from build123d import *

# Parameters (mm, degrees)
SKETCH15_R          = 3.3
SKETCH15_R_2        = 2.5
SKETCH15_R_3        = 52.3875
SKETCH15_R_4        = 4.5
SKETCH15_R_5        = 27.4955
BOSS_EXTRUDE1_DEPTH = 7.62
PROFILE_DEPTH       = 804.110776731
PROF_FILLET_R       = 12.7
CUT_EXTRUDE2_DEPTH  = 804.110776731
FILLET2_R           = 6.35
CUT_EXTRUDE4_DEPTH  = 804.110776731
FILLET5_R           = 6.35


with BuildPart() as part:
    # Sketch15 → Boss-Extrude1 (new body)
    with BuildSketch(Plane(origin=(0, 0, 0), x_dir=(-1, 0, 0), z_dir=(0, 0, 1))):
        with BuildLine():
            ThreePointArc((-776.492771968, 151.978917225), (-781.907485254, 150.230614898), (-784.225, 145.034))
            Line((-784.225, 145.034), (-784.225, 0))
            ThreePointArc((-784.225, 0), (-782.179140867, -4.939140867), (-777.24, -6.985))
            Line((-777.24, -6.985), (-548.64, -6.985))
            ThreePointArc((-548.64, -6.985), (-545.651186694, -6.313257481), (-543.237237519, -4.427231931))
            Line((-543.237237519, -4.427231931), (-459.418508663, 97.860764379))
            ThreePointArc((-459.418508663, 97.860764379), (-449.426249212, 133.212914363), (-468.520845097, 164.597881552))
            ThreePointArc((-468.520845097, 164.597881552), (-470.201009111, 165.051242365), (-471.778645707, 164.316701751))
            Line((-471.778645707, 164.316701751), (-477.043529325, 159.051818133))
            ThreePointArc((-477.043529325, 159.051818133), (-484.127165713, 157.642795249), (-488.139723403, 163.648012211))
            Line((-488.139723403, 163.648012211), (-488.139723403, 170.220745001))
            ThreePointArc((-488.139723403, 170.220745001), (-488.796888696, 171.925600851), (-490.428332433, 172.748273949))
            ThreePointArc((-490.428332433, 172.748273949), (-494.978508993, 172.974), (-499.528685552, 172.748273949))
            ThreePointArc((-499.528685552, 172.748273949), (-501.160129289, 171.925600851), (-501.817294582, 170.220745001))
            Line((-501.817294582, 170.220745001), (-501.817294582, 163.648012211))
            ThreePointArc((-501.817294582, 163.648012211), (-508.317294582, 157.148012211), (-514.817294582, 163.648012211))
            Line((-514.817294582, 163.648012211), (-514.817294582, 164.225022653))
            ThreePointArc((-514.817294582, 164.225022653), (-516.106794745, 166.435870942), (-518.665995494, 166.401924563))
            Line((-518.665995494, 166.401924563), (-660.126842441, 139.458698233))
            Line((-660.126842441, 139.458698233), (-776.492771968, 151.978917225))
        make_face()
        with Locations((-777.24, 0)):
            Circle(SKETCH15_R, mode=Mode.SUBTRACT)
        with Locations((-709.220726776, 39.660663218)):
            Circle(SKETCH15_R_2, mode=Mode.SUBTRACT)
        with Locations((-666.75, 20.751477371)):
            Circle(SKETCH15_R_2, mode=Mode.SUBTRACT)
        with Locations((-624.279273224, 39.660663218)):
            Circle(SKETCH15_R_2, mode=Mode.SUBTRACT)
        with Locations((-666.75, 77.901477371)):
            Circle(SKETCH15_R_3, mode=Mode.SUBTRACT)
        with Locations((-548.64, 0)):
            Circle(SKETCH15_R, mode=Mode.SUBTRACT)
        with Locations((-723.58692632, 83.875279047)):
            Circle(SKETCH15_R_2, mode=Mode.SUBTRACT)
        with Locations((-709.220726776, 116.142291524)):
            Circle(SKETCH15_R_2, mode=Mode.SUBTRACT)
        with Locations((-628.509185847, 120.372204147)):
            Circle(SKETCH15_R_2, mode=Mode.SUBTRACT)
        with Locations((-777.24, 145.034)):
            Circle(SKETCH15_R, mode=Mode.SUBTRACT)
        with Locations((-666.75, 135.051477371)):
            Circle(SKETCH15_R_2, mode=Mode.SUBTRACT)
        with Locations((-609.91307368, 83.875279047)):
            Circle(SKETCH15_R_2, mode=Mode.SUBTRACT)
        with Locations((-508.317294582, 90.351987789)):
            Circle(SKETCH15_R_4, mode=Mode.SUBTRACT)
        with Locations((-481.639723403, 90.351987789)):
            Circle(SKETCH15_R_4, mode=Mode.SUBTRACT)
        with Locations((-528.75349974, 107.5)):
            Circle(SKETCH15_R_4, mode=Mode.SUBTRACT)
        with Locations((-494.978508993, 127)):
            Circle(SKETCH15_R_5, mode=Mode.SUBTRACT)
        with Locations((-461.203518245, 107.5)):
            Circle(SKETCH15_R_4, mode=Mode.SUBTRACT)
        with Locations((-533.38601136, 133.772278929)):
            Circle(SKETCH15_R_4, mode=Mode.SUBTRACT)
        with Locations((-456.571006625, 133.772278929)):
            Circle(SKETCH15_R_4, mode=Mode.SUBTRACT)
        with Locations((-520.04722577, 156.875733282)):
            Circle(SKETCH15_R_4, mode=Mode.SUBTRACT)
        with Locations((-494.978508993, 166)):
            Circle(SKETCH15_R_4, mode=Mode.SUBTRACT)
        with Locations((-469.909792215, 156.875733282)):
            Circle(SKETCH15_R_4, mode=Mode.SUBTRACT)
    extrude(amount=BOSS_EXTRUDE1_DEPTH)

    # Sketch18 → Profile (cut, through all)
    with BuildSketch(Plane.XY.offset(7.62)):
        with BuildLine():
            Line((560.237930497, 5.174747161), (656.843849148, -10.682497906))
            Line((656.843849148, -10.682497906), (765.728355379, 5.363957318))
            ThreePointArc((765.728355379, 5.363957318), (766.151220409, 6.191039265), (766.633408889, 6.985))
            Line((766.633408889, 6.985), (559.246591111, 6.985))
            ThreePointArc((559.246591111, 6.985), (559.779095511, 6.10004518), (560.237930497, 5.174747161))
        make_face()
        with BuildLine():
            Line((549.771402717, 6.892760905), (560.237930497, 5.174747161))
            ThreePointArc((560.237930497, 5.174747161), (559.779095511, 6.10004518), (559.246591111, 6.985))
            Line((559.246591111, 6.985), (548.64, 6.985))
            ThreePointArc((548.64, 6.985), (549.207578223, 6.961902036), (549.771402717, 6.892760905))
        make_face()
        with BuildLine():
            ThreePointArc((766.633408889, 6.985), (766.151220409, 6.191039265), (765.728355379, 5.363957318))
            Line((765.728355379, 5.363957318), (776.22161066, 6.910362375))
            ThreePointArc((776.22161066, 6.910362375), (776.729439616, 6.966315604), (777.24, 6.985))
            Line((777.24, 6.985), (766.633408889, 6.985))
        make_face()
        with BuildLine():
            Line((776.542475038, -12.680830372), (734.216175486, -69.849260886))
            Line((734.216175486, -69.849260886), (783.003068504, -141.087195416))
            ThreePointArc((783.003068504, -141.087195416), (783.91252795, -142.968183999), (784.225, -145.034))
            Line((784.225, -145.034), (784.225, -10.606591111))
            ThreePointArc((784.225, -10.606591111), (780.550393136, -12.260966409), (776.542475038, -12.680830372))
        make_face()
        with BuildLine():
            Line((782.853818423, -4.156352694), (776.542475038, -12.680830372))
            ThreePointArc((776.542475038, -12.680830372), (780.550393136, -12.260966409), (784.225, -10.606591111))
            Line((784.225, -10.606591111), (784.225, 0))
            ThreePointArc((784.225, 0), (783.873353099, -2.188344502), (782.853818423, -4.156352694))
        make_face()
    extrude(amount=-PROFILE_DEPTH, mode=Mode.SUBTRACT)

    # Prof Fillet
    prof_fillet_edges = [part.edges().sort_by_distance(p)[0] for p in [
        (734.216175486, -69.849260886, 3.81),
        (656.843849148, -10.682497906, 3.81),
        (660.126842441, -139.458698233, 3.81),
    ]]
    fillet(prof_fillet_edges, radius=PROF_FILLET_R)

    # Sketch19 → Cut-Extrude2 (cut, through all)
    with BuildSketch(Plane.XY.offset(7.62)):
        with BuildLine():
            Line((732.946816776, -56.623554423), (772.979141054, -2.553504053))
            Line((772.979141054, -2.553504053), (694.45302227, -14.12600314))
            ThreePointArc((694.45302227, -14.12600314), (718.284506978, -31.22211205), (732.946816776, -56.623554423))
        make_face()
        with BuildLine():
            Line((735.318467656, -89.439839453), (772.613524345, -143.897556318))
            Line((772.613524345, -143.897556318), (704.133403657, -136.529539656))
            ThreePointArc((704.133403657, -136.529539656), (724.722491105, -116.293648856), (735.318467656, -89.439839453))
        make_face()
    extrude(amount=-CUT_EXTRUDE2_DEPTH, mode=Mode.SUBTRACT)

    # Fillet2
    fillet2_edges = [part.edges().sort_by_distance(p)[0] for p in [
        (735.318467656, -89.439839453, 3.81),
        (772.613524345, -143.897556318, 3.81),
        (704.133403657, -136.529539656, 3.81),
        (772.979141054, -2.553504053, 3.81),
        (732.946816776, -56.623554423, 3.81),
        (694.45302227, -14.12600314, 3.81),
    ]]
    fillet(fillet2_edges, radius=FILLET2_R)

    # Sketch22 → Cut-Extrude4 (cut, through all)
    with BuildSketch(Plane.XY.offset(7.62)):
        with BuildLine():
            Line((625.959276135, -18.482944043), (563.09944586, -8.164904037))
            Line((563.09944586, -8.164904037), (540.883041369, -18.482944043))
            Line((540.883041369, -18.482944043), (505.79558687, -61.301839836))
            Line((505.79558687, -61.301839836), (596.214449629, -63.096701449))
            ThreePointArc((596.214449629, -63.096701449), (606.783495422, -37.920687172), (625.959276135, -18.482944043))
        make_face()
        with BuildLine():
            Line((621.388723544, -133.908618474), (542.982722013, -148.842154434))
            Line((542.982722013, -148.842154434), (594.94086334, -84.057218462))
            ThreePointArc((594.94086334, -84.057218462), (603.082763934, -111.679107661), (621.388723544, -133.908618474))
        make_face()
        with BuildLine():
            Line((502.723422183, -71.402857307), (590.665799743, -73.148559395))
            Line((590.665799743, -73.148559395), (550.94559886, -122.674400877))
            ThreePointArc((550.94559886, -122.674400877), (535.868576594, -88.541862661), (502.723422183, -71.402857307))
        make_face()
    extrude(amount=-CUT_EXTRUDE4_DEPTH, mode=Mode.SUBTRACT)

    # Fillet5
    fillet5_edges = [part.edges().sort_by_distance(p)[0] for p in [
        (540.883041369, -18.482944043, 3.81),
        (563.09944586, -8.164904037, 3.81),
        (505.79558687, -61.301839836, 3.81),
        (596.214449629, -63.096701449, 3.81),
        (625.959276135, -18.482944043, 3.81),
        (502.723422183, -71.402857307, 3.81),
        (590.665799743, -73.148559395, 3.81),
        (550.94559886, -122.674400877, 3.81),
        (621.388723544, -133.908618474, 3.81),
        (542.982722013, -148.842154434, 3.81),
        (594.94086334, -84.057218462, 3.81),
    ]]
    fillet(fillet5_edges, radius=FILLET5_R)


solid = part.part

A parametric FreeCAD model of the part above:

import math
import FreeCAD as App
import Part
import Sketcher

V = App.Vector
Q = App.Units.Quantity


def edges_at(feature, points):
    """Names of the edges that pass closest to the given points."""
    edges = feature.Shape.Edges
    near = lambda p: min(range(len(edges)), key=lambda i: edges[i].distToShape(Part.Vertex(*p))[0])
    return sorted({f"Edge{near(p) + 1}" for p in points})

doc = App.newDocument("Part")
params = doc.addObject("Spreadsheet::Sheet", "Params")
for row, (alias, value) in enumerate([
    ("sketch1_radius", "0.1 in"),
    ("sketch1_width", "9 in"),
    ("sketch1_radius2", "1.81 in"),
    ("sketch1_diameter", "4.125 in"),
    ("sketch1_diameter2", "2.165 in"),
    ("pad1_length", "0.3 in"),
    ("sketch2_width", "9 in"),
    ("sketch2_radius", "0.275 in"),
    ("sketch2_height", "5.71 in"),
    ("fillet_radius", "0.5 in"),
    ("fillet2_radius", "0.25 in"),
    ("sketch4_radius", "2.21 in"),
    ("fillet3_radius", "0.25 in"),
], start=1):
    params.set(f"A{row}", alias)
    params.set(f"B{row}", "=" + value)
    params.setAlias(f"B{row}", alias)

body = doc.addObject("PartDesign::Body", "Body")

# Sketch on XY plane
sketch1 = body.newObject("Sketcher::SketchObject", "Sketch")
sketch1.AttachmentSupport = (doc.getObject("XY_Plane"), [""])
sketch1.MapMode = "FlatFace"
sketch1.addGeometry([
    Part.ArcOfCircle(Part.Circle(V(777.2, -145, 0), V(0, 0, 1), 7), math.radians(-96), math.radians(0)),  # 0
    Part.LineSegment(V(784.2, -145, 0), V(784.2, 0, 0)),  # 1
    Part.ArcOfCircle(Part.Circle(V(777.2, 0, 0), V(0, 0, 1), 7), math.radians(0), math.radians(90)),  # 2
    Part.LineSegment(V(777.2, 7, 0), V(548.6, 7, 0)),  # 3
    Part.ArcOfCircle(Part.Circle(V(548.6, 0, 0), V(0, 0, 1), 7), math.radians(90), math.radians(141)),  # 4
    Part.LineSegment(V(543.2, 4.4, 0), V(459.4, -97.9, 0)),  # 5
    Part.ArcOfCircle(Part.Circle(V(495, -127, 0), V(0, 0, 1), 46), math.radians(141), math.radians(235)),  # 6
    Part.ArcOfCircle(Part.Circle(V(470, -162.5, 0), V(0, 0, 1), 2.5), math.radians(-125), math.radians(-45)),  # 7
    Part.LineSegment(V(471.8, -164.3, 0), V(477, -159.1, 0)),  # 8
    Part.ArcOfCircle(Part.Circle(V(481.6, -163.6, 0), V(0, 0, 1), 6.5), math.radians(0), math.radians(135)),  # 9
    Part.LineSegment(V(488.1, -163.6, 0), V(488.1, -170.2, 0)),  # 10
    Part.ArcOfCircle(Part.Circle(V(490.7, -170.2, 0), V(0, 0, 1), 2.5), math.radians(180), math.radians(264)),  # 11
    Part.ArcOfCircle(Part.Circle(V(495, -127, 0), V(0, 0, 1), 46), math.radians(-95.68), math.radians(-84.32)),  # 12
    Part.ArcOfCircle(Part.Circle(V(499.3, -170.2, 0), V(0, 0, 1), 2.5), math.radians(-84), math.radians(0)),  # 13
    Part.LineSegment(V(501.8, -170.2, 0), V(501.8, -163.6, 0)),  # 14
    Part.ArcOfCircle(Part.Circle(V(508.3, -163.6, 0), V(0, 0, 1), 6.5), math.radians(0), math.radians(180)),  # 15
    Part.LineSegment(V(514.8, -163.6, 0), V(514.8, -164.2, 0)),  # 16
    Part.ArcOfCircle(Part.Circle(V(517.4, -164.2, 0), V(0, 0, 1), 2.5), math.radians(-180), math.radians(-59)),  # 17
    Part.LineSegment(V(518.7, -166.4, 0), V(660.1, -139.5, 0)),  # 18
    Part.LineSegment(V(660.1, -139.5, 0), V(776.5, -152, 0)),  # 19
    Part.Circle(V(777.2, 0, 0), V(0, 0, 1), 3.3),  # 20
    Part.Circle(V(709.2, -39.7, 0), V(0, 0, 1), 2.5),  # 21
    Part.Circle(V(666.8, -20.8, 0), V(0, 0, 1), 2.5),  # 22
    Part.Circle(V(624.3, -39.7, 0), V(0, 0, 1), 2.5),  # 23
    Part.Circle(V(666.8, -77.9, 0), V(0, 0, 1), 52.4),  # 24
    Part.Circle(V(548.6, 0, 0), V(0, 0, 1), 3.3),  # 25
    Part.Circle(V(723.6, -83.9, 0), V(0, 0, 1), 2.5),  # 26
    Part.Circle(V(709.2, -116.1, 0), V(0, 0, 1), 2.5),  # 27
    Part.Circle(V(628.5, -120.4, 0), V(0, 0, 1), 2.5),  # 28
    Part.Circle(V(777.2, -145, 0), V(0, 0, 1), 3.3),  # 29
    Part.Circle(V(666.8, -135.1, 0), V(0, 0, 1), 2.5),  # 30
    Part.Circle(V(609.9, -83.9, 0), V(0, 0, 1), 2.5),  # 31
    Part.Circle(V(508.3, -90.4, 0), V(0, 0, 1), 4.5),  # 32
    Part.Circle(V(481.6, -90.4, 0), V(0, 0, 1), 4.5),  # 33
    Part.Circle(V(528.8, -107.5, 0), V(0, 0, 1), 4.5),  # 34
    Part.Circle(V(495, -127, 0), V(0, 0, 1), 27.5),  # 35
    Part.Circle(V(461.2, -107.5, 0), V(0, 0, 1), 4.5),  # 36
    Part.Circle(V(533.4, -133.8, 0), V(0, 0, 1), 4.5),  # 37
    Part.Circle(V(456.6, -133.8, 0), V(0, 0, 1), 4.5),  # 38
    Part.Circle(V(520, -156.9, 0), V(0, 0, 1), 4.5),  # 39
    Part.Circle(V(495, -166, 0), V(0, 0, 1), 4.5),  # 40
    Part.Circle(V(469.9, -156.9, 0), V(0, 0, 1), 4.5),  # 41
], False)
sketch1.addConstraint([
    Sketcher.Constraint("Tangent", 0, 2, 1, 1),
    Sketcher.Constraint("Tangent", 1, 2, 2, 1),
    Sketcher.Constraint("Tangent", 2, 2, 3, 1),
    Sketcher.Constraint("Tangent", 3, 2, 4, 1),
    Sketcher.Constraint("Tangent", 4, 2, 5, 1),
    Sketcher.Constraint("Tangent", 5, 2, 6, 1),
    Sketcher.Constraint("Tangent", 6, 2, 7, 1),
    Sketcher.Constraint("Tangent", 7, 2, 8, 1),
    Sketcher.Constraint("Tangent", 8, 2, 9, 2),
    Sketcher.Constraint("Tangent", 9, 1, 10, 1),
    Sketcher.Constraint("Tangent", 10, 2, 11, 1),
    Sketcher.Constraint("Tangent", 11, 2, 12, 1),
    Sketcher.Constraint("Tangent", 12, 2, 13, 1),
    Sketcher.Constraint("Tangent", 13, 2, 14, 1),
    Sketcher.Constraint("Tangent", 14, 2, 15, 2),
    Sketcher.Constraint("Tangent", 15, 1, 16, 1),
    Sketcher.Constraint("Tangent", 16, 2, 17, 1),
    Sketcher.Constraint("Coincident", 17, 2, 18, 1),
    Sketcher.Constraint("Coincident", 18, 2, 19, 1),
    Sketcher.Constraint("Tangent", 19, 2, 0, 1),
    Sketcher.Constraint("Vertical", 1),
    Sketcher.Constraint("Horizontal", 3),
    Sketcher.Constraint("Vertical", 10),
    Sketcher.Constraint("Vertical", 14),
    Sketcher.Constraint("Vertical", 16),
    Sketcher.Constraint("Coincident", 12, 3, 6, 3),
    Sketcher.Constraint("Coincident", 20, 3, 2, 3),
    Sketcher.Constraint("Coincident", 25, 3, 4, 3),
    Sketcher.Constraint("Coincident", 29, 3, 0, 3),
    Sketcher.Constraint("Coincident", 35, 3, 6, 3),
    Sketcher.Constraint("Equal", 0, 2),
    Sketcher.Constraint("Equal", 2, 4),
    Sketcher.Constraint("Equal", 7, 11),
    Sketcher.Constraint("Equal", 6, 12),
    Sketcher.Constraint("Equal", 11, 13),
    Sketcher.Constraint("Equal", 9, 15),
    Sketcher.Constraint("Equal", 13, 17),
    Sketcher.Constraint("Equal", 21, 22),
    Sketcher.Constraint("Equal", 22, 23),
    Sketcher.Constraint("Equal", 20, 25),
    Sketcher.Constraint("Equal", 23, 26),
    Sketcher.Constraint("Equal", 26, 27),
    Sketcher.Constraint("Equal", 27, 28),
    Sketcher.Constraint("Equal", 25, 29),
    Sketcher.Constraint("Equal", 28, 30),
    Sketcher.Constraint("Equal", 30, 31),
    Sketcher.Constraint("Equal", 32, 33),
    Sketcher.Constraint("Equal", 33, 34),
    Sketcher.Constraint("Equal", 34, 36),
    Sketcher.Constraint("Equal", 36, 37),
    Sketcher.Constraint("Equal", 37, 38),
    Sketcher.Constraint("Equal", 38, 39),
    Sketcher.Constraint("Equal", 39, 40),
    Sketcher.Constraint("Equal", 40, 41),
    Sketcher.Constraint("PointOnObject", 2, 3, -1),
    Sketcher.Constraint("Horizontal", 11, 3, 13, 3),
    Sketcher.Constraint("Horizontal", 9, 3, 15, 3),
    Sketcher.Constraint("Horizontal", 21, 3, 23, 3),
    Sketcher.Constraint("Horizontal", 26, 3, 31, 3),
    Sketcher.Constraint("Horizontal", 32, 3, 33, 3),
    Sketcher.Constraint("Horizontal", 34, 3, 36, 3),
    Sketcher.Constraint("Horizontal", 37, 3, 38, 3),
    Sketcher.Constraint("Horizontal", 39, 3, 41, 3),
    Sketcher.Constraint("Vertical", 22, 3, 24, 3),
    Sketcher.Constraint("Vertical", 21, 3, 27, 3),
    Sketcher.Constraint("Vertical", 24, 3, 30, 3),
    Sketcher.Constraint("Vertical", 15, 3, 32, 3),
    Sketcher.Constraint("Vertical", 9, 3, 33, 3),
    Sketcher.Constraint("Vertical", 35, 3, 40, 3),
    Sketcher.Constraint("Radius", 7, Q("0.1 in")),
    Sketcher.Constraint("DistanceX", 3, 2, 3, 1, Q("9 in")),
    Sketcher.Constraint("Radius", 6, Q("1.81 in")),
    Sketcher.Constraint("Diameter", 24, Q("4.125 in")),
    Sketcher.Constraint("Diameter", 35, Q("2.165 in")),
    Sketcher.Constraint("DistanceY", 6, 3, -1, 1, Q("5 in")),
    Sketcher.Constraint("Angle", 8, Q("45 deg")),
    Sketcher.Constraint("Radius", 0, Q("0.275 in")),
    Sketcher.Constraint("DistanceY", 1, 1, 1, 2, Q("5.71 in")),
    Sketcher.Constraint("DistanceX", -1, 1, 0, 3, Q("30.6 in")),
    Sketcher.Constraint("DistanceX", 5, 2, 12, 3, Q("1.4 in")),
    Sketcher.Constraint("Diameter", 20, Q("6.6 mm")),
    Sketcher.Constraint("Diameter", 21, Q("5 mm")),
    Sketcher.Constraint("Diameter", 32, Q("9 mm")),
    Sketcher.Constraint("DistanceX", -1, 1, 22, 3, Q("26.25 in")),
    Sketcher.Constraint("Radius", 9, Q("6.5 mm")),
    Sketcher.Constraint("DistanceY", 24, 3, 22, 3, Q("2.25 in")),
    Sketcher.Constraint("DistanceY", 30, 3, 24, 3, Q("2.25 in")),
    Sketcher.Constraint("DistanceY", 18, 2, -1, 1, Q("5.4904999 in")),
    Sketcher.Constraint("DistanceY", 16, 2, 16, 1, Q("0.57701 mm")),
    Sketcher.Constraint("DistanceX", -1, 1, 34, 3, Q("528.7535 mm")),
    Sketcher.Constraint("DistanceY", 34, 3, -1, 1, Q("107.5 mm")),
    Sketcher.Constraint("DistanceY", 40, 3, -1, 1, Q("166 mm")),
    Sketcher.Constraint("DistanceY", 7, 2, -1, 1, Q("164.316702 mm")),
    Sketcher.Constraint("DistanceX", 7, 3, 13, 3, Q("29.2947 mm")),
    Sketcher.Constraint("DistanceX", 21, 3, 26, 3, Q("14.3662 mm")),
    Sketcher.Constraint("DistanceY", 26, 3, 24, 3, Q("5.973802 mm")),
    Sketcher.Constraint("DistanceX", 31, 3, 23, 3, Q("14.3662 mm")),
    Sketcher.Constraint("DistanceX", 17, 3, 17, 2, Q("1.308701 mm")),
    Sketcher.Constraint("Distance", 18, Q("144.003849 mm")),
    Sketcher.Constraint("DistanceY", 26, 3, -1, 1, Q("83.875279 mm")),
    Sketcher.Constraint("DistanceY", 27, 3, -1, 1, Q("116.142292 mm")),
    Sketcher.Constraint("DistanceX", -1, 1, 36, 3, Q("461.203518 mm")),
    Sketcher.Constraint("DistanceX", -1, 1, 37, 3, Q("533.386011 mm")),
    Sketcher.Constraint("DistanceY", 37, 3, -1, 1, Q("133.772279 mm")),
    Sketcher.Constraint("DistanceY", 17, 3, 21, 3, Q("124.564359 mm")),
    Sketcher.Constraint("DistanceX", 28, 3, 27, 3, Q("80.711541 mm")),
    Sketcher.Constraint("DistanceY", 28, 3, 23, 3, Q("80.711541 mm")),
    Sketcher.Constraint("DistanceX", 38, 3, 36, 3, Q("4.632512 mm")),
    Sketcher.Constraint("DistanceX", 17, 3, 39, 3, Q("2.689931 mm")),
    Sketcher.Constraint("DistanceY", 17, 3, 39, 3, Q("7.349289 mm")),
    Sketcher.Constraint("DistanceX", 41, 3, 9, 3, Q("11.729931 mm")),
    Sketcher.Constraint("DistanceY", 32, 3, 4, 2, Q("94.77922 mm")),
    Sketcher.Constraint("DistanceX", 31, 3, 18, 2, Q("50.213769 mm")),
    Sketcher.Constraint("DistanceX", -1, 1, 21, 3, Q("709.220727 mm")),
])
sketch1.setExpression("Constraints[69]", "Params.sketch1_radius")
sketch1.setExpression("Constraints[70]", "Params.sketch1_width")
sketch1.setExpression("Constraints[71]", "Params.sketch1_radius2")
sketch1.setExpression("Constraints[72]", "Params.sketch1_diameter")
sketch1.setExpression("Constraints[73]", "Params.sketch1_diameter2")
pad1 = body.newObject("PartDesign::Pad", "Pad")
pad1.Profile = sketch1
pad1.setExpression("Length", "Params.pad1_length")

# Sketch on XY plane
sketch2 = body.newObject("Sketcher::SketchObject", "Sketch001")
sketch2.AttachmentSupport = (doc.getObject("XY_Plane"), [""])
sketch2.MapMode = "FlatFace"
sketch2.AttachmentOffset = App.Placement(V(0, 0, 0.3 * 25.4), App.Rotation())
sketch2.addGeometry([
    Part.LineSegment(V(560.2, 5.2, 0), V(656.8, -10.7, 0)),  # 0
    Part.LineSegment(V(656.8, -10.7, 0), V(765.7, 5.4, 0)),  # 1
    Part.LineSegment(V(765.7, 5.4, 0), V(776.2, 6.9, 0)),  # 2
    Part.ArcOfCircle(Part.Circle(V(777.2, 0, 0), V(0, 0, 1), 7), math.radians(90), math.radians(98.38)),  # 3
    Part.LineSegment(V(777.2, 7, 0), V(548.6, 7, 0)),  # 4
    Part.ArcOfCircle(Part.Circle(V(548.6, 0, 0), V(0, 0, 1), 7), math.radians(80.68), math.radians(90)),  # 5
    Part.LineSegment(V(549.8, 6.9, 0), V(560.2, 5.2, 0)),  # 6
    Part.LineSegment(V(776.5, -12.7, 0), V(734.2, -69.8, 0)),  # 7
    Part.LineSegment(V(734.2, -69.8, 0), V(783, -141.1, 0)),  # 8
    Part.ArcOfCircle(Part.Circle(V(777.2, -145, 0), V(0, 0, 1), 7), math.radians(0), math.radians(34)),  # 9
    Part.LineSegment(V(784.2, -145, 0), V(784.2, 0, 0)),  # 10
    Part.ArcOfCircle(Part.Circle(V(777.2, 0, 0), V(0, 0, 1), 7), math.radians(-37), math.radians(0)),  # 11
    Part.LineSegment(V(782.9, -4.2, 0), V(776.5, -12.7, 0)),  # 12
], False)
sketch2.addConstraint([
    Sketcher.Constraint("Coincident", 0, 2, 1, 1),
    Sketcher.Constraint("Coincident", 1, 2, 2, 1),
    Sketcher.Constraint("Tangent", 2, 2, 3, 2),
    Sketcher.Constraint("Tangent", 3, 1, 4, 1),
    Sketcher.Constraint("Tangent", 4, 2, 5, 2),
    Sketcher.Constraint("Tangent", 5, 1, 6, 1),
    Sketcher.Constraint("Coincident", 6, 2, 0, 1),
    Sketcher.Constraint("Coincident", 7, 2, 8, 1),
    Sketcher.Constraint("Tangent", 8, 2, 9, 2),
    Sketcher.Constraint("Tangent", 9, 1, 10, 1),
    Sketcher.Constraint("Tangent", 10, 2, 11, 2),
    Sketcher.Constraint("Tangent", 11, 1, 12, 1),
    Sketcher.Constraint("Coincident", 12, 2, 7, 1),
    Sketcher.Constraint("Horizontal", 4),
    Sketcher.Constraint("Vertical", 10),
    Sketcher.Constraint("Coincident", 11, 3, 3, 3),
    Sketcher.Constraint("Equal", 3, 5),
    Sketcher.Constraint("Equal", 5, 9),
    Sketcher.Constraint("Equal", 9, 11),
    Sketcher.Constraint("PointOnObject", 3, 3, -1),
    Sketcher.Constraint("Parallel", 1, 2),
    Sketcher.Constraint("Parallel", 0, 6),
    Sketcher.Constraint("Parallel", 7, 12),
    Sketcher.Constraint("Equal", 2, 6),
    Sketcher.Constraint("Equal", 6, 12),
    Sketcher.Constraint("DistanceX", 4, 2, 4, 1, Q("9 in")),
    Sketcher.Constraint("Radius", 3, Q("0.275 in")),
    Sketcher.Constraint("DistanceY", 10, 1, 10, 2, Q("5.71 in")),
    Sketcher.Constraint("DistanceX", -1, 1, 3, 3, Q("30.6 in")),
    Sketcher.Constraint("Distance", 0, Q("97.898701 mm")),
    Sketcher.Constraint("Distance", 1, Q("110.060549 mm")),
    Sketcher.Constraint("Distance", 2, Q("10.606591 mm")),
    Sketcher.Constraint("DistanceY", 7, 2, -1, 1, Q("69.849261 mm")),
    Sketcher.Constraint("DistanceX", -1, 1, 8, 2, Q("783.003069 mm")),
])
sketch2.setExpression("Constraints[25]", "Params.sketch2_width")
sketch2.setExpression("Constraints[26]", "Params.sketch2_radius")
sketch2.setExpression("Constraints[27]", "Params.sketch2_height")
pocket1 = body.newObject("PartDesign::Pocket", "Pocket")
pocket1.Profile = sketch2
pocket1.Type = "ThroughAll"
doc.recompute()

fillet = body.newObject("PartDesign::Fillet", "Fillet")
fillet.Base = (pocket1, edges_at(pocket1, [(734.216, -69.849, 3.81), (656.844, -10.682, 3.81), (660.127, -139.459, 3.81)]))
fillet.setExpression("Radius", "Params.fillet_radius")

# Sketch on XY plane
sketch3 = body.newObject("Sketcher::SketchObject", "Sketch002")
sketch3.AttachmentSupport = (doc.getObject("XY_Plane"), [""])
sketch3.MapMode = "FlatFace"
sketch3.AttachmentOffset = App.Placement(V(0, 0, 0.3 * 25.4), App.Rotation())
sketch3.addGeometry([
    Part.LineSegment(V(733, -57, 0), V(773, -3, 0)),  # 0
    Part.LineSegment(V(773, -3, 0), V(694, -14, 0)),  # 1
    Part.ArcOfCircle(Part.Circle(V(667, -78, 0), V(0, 0, 1), 70), math.radians(18), math.radians(67)),  # 2
    Part.LineSegment(V(773, -144, 0), V(735, -89, 0)),  # 3
    Part.ArcOfCircle(Part.Circle(V(667, -78, 0), V(0, 0, 1), 70), math.radians(-57), math.radians(-10)),  # 4
    Part.LineSegment(V(704, -137, 0), V(773, -144, 0)),  # 5
], False)
sketch3.addConstraint([
    Sketcher.Constraint("Coincident", 0, 2, 1, 1),
    Sketcher.Constraint("Coincident", 1, 2, 2, 2),
    Sketcher.Constraint("Coincident", 2, 1, 0, 1),
    Sketcher.Constraint("Coincident", 3, 2, 4, 2),
    Sketcher.Constraint("Coincident", 4, 1, 5, 1),
    Sketcher.Constraint("Coincident", 5, 2, 3, 1),
    Sketcher.Constraint("Coincident", 4, 3, 2, 3),
    Sketcher.Constraint("Equal", 2, 4),
    Sketcher.Constraint("Radius", 2, Q("2.7375 in")),
    Sketcher.Constraint("DistanceX", -1, 1, 2, 3, Q("26.25 in")),
    Sketcher.Constraint("DistanceY", 1, 2, 0, 2, Q("11.572499 mm")),
    Sketcher.Constraint("DistanceY", 4, 1, 3, 2, Q("47.0897 mm")),
    Sketcher.Constraint("DistanceY", 5, 2, 2, 1, Q("87.274002 mm")),
    Sketcher.Constraint("DistanceX", -1, 1, 0, 2, Q("772.979141 mm")),
    Sketcher.Constraint("DistanceY", 3, 2, -1, 1, Q("89.439839 mm")),
    Sketcher.Constraint("DistanceX", 1, 2, 0, 2, Q("78.526119 mm")),
    Sketcher.Constraint("DistanceY", 2, 1, 1, 2, Q("42.497551 mm")),
    Sketcher.Constraint("DistanceX", 2, 1, 3, 2, Q("2.371651 mm")),
    Sketcher.Constraint("DistanceX", 4, 1, 5, 2, Q("68.480121 mm")),
])
pocket2 = body.newObject("PartDesign::Pocket", "Pocket001")
pocket2.Profile = sketch3
pocket2.Type = "ThroughAll"
doc.recompute()

fillet2 = body.newObject("PartDesign::Fillet", "Fillet001")
fillet2.Base = (pocket2, edges_at(pocket2, [
    (735.318, -89.44, 3.81),
    (772.614, -143.898, 3.81),
    (704.133, -136.53, 3.81),
    (772.979, -2.554, 3.81),
    (732.947, -56.624, 3.81),
    (694.453, -14.126, 3.81),
]))
fillet2.setExpression("Radius", "Params.fillet2_radius")

# Sketch on XY plane
sketch4 = body.newObject("Sketcher::SketchObject", "Sketch003")
sketch4.AttachmentSupport = (doc.getObject("XY_Plane"), [""])
sketch4.MapMode = "FlatFace"
sketch4.AttachmentOffset = App.Placement(V(0, 0, 0.3 * 25.4), App.Rotation())
sketch4.addGeometry([
    Part.LineSegment(V(625.959276, -18.482944, 0), V(563.099446, -8.164904, 0)),  # 0
    Part.LineSegment(V(563.099446, -8.164904, 0), V(540.883041, -18.482944, 0)),  # 1
    Part.LineSegment(V(540.883041, -18.482944, 0), V(505.795587, -61.30184, 0)),  # 2
    Part.LineSegment(V(505.795587, -61.30184, 0), V(596.21445, -63.096701, 0)),  # 3
    Part.ArcOfCircle(Part.Circle(V(666.75, -77.901477, 0), V(0, 0, 1), 72.0725), math.radians(124.469533), math.radians(168.146203)),  # 4
    Part.LineSegment(V(542.982722, -148.842154, 0), V(621.388724, -133.908618, 0)),  # 5
    Part.ArcOfCircle(Part.Circle(V(666.75, -77.901477, 0), V(0, 0, 1), 72.0725), math.radians(-175.100375), math.radians(-129.004688)),  # 6
    Part.LineSegment(V(594.940863, -84.057218, 0), V(542.982722, -148.842154, 0)),  # 7
    Part.LineSegment(V(590.6658, -73.148559, 0), V(502.723422, -71.402857, 0)),  # 8
    Part.ArcOfCircle(Part.Circle(V(494.978509, -127, 0), V(0, 0, 1), 56.134), math.radians(4.419505), math.radians(82.069496)),  # 9
    Part.LineSegment(V(550.945599, -122.674401, 0), V(590.6658, -73.148559, 0)),  # 10
], False)
sketch4.addConstraint([
    Sketcher.Constraint("Coincident", 0, 2, 1, 1),
    Sketcher.Constraint("Coincident", 1, 2, 2, 1),
    Sketcher.Constraint("Coincident", 2, 2, 3, 1),
    Sketcher.Constraint("Coincident", 3, 2, 4, 2),
    Sketcher.Constraint("Coincident", 4, 1, 0, 1),
    Sketcher.Constraint("Coincident", 5, 2, 6, 2),
    Sketcher.Constraint("Coincident", 6, 1, 7, 1),
    Sketcher.Constraint("Coincident", 7, 2, 5, 1),
    Sketcher.Constraint("Coincident", 8, 2, 9, 2),
    Sketcher.Constraint("Coincident", 9, 1, 10, 1),
    Sketcher.Constraint("Coincident", 10, 2, 8, 1),
    Sketcher.Constraint("Coincident", 6, 3, 4, 3),
    Sketcher.Constraint("Radius", 9, Q("2.21 in")),
    Sketcher.Constraint("DistanceY", 9, 3, -1, 1, Q("5 in")),
    Sketcher.Constraint("Radius", 4, Q("2.8375 in")),
    Sketcher.Constraint("Radius", 6, Q("2.8375 in")),
    Sketcher.Constraint("DistanceX", -1, 1, 4, 3, Q("26.25 in")),
    Sketcher.Constraint("DistanceY", 3, 2, -1, 1, Q("63.096701 mm")),
    Sketcher.Constraint("DistanceX", -1, 1, 9, 1, Q("550.945599 mm")),
    Sketcher.Constraint("DistanceY", 9, 1, -1, 1, Q("122.674401 mm")),
    Sketcher.Constraint("DistanceX", -1, 1, 10, 2, Q("590.6658 mm")),
    Sketcher.Constraint("DistanceY", 5, 2, 6, 1, Q("49.8514 mm")),
    Sketcher.Constraint("DistanceX", 7, 2, 5, 2, Q("78.406002 mm")),
    Sketcher.Constraint("DistanceX", 8, 2, 7, 2, Q("40.2593 mm")),
    Sketcher.Constraint("Distance", 1, Q("24.495522 mm")),
    Sketcher.Constraint("Distance", 7, Q("83.046592 mm")),
    Sketcher.Constraint("DistanceX", -1, 1, 1, 2, Q("540.883041 mm")),
    Sketcher.Constraint("DistanceY", 2, 2, -1, 1, Q("61.30184 mm")),
    Sketcher.Constraint("DistanceX", -1, 1, 3, 2, Q("596.21445 mm")),
    Sketcher.Constraint("DistanceY", 5, 2, -1, 1, Q("133.908618 mm")),
    Sketcher.Constraint("DistanceY", 10, 2, -1, 1, Q("73.148559 mm")),
    Sketcher.Constraint("DistanceY", 1, 2, 0, 2, Q("10.31804 mm")),
    Sketcher.Constraint("DistanceX", 2, 2, 0, 2, Q("57.303859 mm")),
    Sketcher.Constraint("DistanceX", 0, 2, 4, 1, Q("62.85983 mm")),
    Sketcher.Constraint("DistanceY", 4, 1, 0, 2, Q("10.31804 mm")),
])
sketch4.setExpression("Constraints[12]", "Params.sketch4_radius")
pocket3 = body.newObject("PartDesign::Pocket", "Pocket002")
pocket3.Profile = sketch4
pocket3.Type = "ThroughAll"
doc.recompute()

fillet3 = body.newObject("PartDesign::Fillet", "Fillet002")
fillet3.Base = (pocket3, edges_at(pocket3, [
    (540.883, -18.483, 3.81),
    (563.099, -8.165, 3.81),
    (505.796, -61.302, 3.81),
    (596.214, -63.097, 3.81),
    (625.959, -18.483, 3.81),
    (502.723, -71.403, 3.81),
    (590.666, -73.149, 3.81),
    (550.946, -122.674, 3.81),
    (621.389, -133.909, 3.81),
    (542.983, -148.842, 3.81),
    (594.941, -84.057, 3.81),
]))
fillet3.setExpression("Radius", "Params.fillet3_radius")

doc.recompute()
